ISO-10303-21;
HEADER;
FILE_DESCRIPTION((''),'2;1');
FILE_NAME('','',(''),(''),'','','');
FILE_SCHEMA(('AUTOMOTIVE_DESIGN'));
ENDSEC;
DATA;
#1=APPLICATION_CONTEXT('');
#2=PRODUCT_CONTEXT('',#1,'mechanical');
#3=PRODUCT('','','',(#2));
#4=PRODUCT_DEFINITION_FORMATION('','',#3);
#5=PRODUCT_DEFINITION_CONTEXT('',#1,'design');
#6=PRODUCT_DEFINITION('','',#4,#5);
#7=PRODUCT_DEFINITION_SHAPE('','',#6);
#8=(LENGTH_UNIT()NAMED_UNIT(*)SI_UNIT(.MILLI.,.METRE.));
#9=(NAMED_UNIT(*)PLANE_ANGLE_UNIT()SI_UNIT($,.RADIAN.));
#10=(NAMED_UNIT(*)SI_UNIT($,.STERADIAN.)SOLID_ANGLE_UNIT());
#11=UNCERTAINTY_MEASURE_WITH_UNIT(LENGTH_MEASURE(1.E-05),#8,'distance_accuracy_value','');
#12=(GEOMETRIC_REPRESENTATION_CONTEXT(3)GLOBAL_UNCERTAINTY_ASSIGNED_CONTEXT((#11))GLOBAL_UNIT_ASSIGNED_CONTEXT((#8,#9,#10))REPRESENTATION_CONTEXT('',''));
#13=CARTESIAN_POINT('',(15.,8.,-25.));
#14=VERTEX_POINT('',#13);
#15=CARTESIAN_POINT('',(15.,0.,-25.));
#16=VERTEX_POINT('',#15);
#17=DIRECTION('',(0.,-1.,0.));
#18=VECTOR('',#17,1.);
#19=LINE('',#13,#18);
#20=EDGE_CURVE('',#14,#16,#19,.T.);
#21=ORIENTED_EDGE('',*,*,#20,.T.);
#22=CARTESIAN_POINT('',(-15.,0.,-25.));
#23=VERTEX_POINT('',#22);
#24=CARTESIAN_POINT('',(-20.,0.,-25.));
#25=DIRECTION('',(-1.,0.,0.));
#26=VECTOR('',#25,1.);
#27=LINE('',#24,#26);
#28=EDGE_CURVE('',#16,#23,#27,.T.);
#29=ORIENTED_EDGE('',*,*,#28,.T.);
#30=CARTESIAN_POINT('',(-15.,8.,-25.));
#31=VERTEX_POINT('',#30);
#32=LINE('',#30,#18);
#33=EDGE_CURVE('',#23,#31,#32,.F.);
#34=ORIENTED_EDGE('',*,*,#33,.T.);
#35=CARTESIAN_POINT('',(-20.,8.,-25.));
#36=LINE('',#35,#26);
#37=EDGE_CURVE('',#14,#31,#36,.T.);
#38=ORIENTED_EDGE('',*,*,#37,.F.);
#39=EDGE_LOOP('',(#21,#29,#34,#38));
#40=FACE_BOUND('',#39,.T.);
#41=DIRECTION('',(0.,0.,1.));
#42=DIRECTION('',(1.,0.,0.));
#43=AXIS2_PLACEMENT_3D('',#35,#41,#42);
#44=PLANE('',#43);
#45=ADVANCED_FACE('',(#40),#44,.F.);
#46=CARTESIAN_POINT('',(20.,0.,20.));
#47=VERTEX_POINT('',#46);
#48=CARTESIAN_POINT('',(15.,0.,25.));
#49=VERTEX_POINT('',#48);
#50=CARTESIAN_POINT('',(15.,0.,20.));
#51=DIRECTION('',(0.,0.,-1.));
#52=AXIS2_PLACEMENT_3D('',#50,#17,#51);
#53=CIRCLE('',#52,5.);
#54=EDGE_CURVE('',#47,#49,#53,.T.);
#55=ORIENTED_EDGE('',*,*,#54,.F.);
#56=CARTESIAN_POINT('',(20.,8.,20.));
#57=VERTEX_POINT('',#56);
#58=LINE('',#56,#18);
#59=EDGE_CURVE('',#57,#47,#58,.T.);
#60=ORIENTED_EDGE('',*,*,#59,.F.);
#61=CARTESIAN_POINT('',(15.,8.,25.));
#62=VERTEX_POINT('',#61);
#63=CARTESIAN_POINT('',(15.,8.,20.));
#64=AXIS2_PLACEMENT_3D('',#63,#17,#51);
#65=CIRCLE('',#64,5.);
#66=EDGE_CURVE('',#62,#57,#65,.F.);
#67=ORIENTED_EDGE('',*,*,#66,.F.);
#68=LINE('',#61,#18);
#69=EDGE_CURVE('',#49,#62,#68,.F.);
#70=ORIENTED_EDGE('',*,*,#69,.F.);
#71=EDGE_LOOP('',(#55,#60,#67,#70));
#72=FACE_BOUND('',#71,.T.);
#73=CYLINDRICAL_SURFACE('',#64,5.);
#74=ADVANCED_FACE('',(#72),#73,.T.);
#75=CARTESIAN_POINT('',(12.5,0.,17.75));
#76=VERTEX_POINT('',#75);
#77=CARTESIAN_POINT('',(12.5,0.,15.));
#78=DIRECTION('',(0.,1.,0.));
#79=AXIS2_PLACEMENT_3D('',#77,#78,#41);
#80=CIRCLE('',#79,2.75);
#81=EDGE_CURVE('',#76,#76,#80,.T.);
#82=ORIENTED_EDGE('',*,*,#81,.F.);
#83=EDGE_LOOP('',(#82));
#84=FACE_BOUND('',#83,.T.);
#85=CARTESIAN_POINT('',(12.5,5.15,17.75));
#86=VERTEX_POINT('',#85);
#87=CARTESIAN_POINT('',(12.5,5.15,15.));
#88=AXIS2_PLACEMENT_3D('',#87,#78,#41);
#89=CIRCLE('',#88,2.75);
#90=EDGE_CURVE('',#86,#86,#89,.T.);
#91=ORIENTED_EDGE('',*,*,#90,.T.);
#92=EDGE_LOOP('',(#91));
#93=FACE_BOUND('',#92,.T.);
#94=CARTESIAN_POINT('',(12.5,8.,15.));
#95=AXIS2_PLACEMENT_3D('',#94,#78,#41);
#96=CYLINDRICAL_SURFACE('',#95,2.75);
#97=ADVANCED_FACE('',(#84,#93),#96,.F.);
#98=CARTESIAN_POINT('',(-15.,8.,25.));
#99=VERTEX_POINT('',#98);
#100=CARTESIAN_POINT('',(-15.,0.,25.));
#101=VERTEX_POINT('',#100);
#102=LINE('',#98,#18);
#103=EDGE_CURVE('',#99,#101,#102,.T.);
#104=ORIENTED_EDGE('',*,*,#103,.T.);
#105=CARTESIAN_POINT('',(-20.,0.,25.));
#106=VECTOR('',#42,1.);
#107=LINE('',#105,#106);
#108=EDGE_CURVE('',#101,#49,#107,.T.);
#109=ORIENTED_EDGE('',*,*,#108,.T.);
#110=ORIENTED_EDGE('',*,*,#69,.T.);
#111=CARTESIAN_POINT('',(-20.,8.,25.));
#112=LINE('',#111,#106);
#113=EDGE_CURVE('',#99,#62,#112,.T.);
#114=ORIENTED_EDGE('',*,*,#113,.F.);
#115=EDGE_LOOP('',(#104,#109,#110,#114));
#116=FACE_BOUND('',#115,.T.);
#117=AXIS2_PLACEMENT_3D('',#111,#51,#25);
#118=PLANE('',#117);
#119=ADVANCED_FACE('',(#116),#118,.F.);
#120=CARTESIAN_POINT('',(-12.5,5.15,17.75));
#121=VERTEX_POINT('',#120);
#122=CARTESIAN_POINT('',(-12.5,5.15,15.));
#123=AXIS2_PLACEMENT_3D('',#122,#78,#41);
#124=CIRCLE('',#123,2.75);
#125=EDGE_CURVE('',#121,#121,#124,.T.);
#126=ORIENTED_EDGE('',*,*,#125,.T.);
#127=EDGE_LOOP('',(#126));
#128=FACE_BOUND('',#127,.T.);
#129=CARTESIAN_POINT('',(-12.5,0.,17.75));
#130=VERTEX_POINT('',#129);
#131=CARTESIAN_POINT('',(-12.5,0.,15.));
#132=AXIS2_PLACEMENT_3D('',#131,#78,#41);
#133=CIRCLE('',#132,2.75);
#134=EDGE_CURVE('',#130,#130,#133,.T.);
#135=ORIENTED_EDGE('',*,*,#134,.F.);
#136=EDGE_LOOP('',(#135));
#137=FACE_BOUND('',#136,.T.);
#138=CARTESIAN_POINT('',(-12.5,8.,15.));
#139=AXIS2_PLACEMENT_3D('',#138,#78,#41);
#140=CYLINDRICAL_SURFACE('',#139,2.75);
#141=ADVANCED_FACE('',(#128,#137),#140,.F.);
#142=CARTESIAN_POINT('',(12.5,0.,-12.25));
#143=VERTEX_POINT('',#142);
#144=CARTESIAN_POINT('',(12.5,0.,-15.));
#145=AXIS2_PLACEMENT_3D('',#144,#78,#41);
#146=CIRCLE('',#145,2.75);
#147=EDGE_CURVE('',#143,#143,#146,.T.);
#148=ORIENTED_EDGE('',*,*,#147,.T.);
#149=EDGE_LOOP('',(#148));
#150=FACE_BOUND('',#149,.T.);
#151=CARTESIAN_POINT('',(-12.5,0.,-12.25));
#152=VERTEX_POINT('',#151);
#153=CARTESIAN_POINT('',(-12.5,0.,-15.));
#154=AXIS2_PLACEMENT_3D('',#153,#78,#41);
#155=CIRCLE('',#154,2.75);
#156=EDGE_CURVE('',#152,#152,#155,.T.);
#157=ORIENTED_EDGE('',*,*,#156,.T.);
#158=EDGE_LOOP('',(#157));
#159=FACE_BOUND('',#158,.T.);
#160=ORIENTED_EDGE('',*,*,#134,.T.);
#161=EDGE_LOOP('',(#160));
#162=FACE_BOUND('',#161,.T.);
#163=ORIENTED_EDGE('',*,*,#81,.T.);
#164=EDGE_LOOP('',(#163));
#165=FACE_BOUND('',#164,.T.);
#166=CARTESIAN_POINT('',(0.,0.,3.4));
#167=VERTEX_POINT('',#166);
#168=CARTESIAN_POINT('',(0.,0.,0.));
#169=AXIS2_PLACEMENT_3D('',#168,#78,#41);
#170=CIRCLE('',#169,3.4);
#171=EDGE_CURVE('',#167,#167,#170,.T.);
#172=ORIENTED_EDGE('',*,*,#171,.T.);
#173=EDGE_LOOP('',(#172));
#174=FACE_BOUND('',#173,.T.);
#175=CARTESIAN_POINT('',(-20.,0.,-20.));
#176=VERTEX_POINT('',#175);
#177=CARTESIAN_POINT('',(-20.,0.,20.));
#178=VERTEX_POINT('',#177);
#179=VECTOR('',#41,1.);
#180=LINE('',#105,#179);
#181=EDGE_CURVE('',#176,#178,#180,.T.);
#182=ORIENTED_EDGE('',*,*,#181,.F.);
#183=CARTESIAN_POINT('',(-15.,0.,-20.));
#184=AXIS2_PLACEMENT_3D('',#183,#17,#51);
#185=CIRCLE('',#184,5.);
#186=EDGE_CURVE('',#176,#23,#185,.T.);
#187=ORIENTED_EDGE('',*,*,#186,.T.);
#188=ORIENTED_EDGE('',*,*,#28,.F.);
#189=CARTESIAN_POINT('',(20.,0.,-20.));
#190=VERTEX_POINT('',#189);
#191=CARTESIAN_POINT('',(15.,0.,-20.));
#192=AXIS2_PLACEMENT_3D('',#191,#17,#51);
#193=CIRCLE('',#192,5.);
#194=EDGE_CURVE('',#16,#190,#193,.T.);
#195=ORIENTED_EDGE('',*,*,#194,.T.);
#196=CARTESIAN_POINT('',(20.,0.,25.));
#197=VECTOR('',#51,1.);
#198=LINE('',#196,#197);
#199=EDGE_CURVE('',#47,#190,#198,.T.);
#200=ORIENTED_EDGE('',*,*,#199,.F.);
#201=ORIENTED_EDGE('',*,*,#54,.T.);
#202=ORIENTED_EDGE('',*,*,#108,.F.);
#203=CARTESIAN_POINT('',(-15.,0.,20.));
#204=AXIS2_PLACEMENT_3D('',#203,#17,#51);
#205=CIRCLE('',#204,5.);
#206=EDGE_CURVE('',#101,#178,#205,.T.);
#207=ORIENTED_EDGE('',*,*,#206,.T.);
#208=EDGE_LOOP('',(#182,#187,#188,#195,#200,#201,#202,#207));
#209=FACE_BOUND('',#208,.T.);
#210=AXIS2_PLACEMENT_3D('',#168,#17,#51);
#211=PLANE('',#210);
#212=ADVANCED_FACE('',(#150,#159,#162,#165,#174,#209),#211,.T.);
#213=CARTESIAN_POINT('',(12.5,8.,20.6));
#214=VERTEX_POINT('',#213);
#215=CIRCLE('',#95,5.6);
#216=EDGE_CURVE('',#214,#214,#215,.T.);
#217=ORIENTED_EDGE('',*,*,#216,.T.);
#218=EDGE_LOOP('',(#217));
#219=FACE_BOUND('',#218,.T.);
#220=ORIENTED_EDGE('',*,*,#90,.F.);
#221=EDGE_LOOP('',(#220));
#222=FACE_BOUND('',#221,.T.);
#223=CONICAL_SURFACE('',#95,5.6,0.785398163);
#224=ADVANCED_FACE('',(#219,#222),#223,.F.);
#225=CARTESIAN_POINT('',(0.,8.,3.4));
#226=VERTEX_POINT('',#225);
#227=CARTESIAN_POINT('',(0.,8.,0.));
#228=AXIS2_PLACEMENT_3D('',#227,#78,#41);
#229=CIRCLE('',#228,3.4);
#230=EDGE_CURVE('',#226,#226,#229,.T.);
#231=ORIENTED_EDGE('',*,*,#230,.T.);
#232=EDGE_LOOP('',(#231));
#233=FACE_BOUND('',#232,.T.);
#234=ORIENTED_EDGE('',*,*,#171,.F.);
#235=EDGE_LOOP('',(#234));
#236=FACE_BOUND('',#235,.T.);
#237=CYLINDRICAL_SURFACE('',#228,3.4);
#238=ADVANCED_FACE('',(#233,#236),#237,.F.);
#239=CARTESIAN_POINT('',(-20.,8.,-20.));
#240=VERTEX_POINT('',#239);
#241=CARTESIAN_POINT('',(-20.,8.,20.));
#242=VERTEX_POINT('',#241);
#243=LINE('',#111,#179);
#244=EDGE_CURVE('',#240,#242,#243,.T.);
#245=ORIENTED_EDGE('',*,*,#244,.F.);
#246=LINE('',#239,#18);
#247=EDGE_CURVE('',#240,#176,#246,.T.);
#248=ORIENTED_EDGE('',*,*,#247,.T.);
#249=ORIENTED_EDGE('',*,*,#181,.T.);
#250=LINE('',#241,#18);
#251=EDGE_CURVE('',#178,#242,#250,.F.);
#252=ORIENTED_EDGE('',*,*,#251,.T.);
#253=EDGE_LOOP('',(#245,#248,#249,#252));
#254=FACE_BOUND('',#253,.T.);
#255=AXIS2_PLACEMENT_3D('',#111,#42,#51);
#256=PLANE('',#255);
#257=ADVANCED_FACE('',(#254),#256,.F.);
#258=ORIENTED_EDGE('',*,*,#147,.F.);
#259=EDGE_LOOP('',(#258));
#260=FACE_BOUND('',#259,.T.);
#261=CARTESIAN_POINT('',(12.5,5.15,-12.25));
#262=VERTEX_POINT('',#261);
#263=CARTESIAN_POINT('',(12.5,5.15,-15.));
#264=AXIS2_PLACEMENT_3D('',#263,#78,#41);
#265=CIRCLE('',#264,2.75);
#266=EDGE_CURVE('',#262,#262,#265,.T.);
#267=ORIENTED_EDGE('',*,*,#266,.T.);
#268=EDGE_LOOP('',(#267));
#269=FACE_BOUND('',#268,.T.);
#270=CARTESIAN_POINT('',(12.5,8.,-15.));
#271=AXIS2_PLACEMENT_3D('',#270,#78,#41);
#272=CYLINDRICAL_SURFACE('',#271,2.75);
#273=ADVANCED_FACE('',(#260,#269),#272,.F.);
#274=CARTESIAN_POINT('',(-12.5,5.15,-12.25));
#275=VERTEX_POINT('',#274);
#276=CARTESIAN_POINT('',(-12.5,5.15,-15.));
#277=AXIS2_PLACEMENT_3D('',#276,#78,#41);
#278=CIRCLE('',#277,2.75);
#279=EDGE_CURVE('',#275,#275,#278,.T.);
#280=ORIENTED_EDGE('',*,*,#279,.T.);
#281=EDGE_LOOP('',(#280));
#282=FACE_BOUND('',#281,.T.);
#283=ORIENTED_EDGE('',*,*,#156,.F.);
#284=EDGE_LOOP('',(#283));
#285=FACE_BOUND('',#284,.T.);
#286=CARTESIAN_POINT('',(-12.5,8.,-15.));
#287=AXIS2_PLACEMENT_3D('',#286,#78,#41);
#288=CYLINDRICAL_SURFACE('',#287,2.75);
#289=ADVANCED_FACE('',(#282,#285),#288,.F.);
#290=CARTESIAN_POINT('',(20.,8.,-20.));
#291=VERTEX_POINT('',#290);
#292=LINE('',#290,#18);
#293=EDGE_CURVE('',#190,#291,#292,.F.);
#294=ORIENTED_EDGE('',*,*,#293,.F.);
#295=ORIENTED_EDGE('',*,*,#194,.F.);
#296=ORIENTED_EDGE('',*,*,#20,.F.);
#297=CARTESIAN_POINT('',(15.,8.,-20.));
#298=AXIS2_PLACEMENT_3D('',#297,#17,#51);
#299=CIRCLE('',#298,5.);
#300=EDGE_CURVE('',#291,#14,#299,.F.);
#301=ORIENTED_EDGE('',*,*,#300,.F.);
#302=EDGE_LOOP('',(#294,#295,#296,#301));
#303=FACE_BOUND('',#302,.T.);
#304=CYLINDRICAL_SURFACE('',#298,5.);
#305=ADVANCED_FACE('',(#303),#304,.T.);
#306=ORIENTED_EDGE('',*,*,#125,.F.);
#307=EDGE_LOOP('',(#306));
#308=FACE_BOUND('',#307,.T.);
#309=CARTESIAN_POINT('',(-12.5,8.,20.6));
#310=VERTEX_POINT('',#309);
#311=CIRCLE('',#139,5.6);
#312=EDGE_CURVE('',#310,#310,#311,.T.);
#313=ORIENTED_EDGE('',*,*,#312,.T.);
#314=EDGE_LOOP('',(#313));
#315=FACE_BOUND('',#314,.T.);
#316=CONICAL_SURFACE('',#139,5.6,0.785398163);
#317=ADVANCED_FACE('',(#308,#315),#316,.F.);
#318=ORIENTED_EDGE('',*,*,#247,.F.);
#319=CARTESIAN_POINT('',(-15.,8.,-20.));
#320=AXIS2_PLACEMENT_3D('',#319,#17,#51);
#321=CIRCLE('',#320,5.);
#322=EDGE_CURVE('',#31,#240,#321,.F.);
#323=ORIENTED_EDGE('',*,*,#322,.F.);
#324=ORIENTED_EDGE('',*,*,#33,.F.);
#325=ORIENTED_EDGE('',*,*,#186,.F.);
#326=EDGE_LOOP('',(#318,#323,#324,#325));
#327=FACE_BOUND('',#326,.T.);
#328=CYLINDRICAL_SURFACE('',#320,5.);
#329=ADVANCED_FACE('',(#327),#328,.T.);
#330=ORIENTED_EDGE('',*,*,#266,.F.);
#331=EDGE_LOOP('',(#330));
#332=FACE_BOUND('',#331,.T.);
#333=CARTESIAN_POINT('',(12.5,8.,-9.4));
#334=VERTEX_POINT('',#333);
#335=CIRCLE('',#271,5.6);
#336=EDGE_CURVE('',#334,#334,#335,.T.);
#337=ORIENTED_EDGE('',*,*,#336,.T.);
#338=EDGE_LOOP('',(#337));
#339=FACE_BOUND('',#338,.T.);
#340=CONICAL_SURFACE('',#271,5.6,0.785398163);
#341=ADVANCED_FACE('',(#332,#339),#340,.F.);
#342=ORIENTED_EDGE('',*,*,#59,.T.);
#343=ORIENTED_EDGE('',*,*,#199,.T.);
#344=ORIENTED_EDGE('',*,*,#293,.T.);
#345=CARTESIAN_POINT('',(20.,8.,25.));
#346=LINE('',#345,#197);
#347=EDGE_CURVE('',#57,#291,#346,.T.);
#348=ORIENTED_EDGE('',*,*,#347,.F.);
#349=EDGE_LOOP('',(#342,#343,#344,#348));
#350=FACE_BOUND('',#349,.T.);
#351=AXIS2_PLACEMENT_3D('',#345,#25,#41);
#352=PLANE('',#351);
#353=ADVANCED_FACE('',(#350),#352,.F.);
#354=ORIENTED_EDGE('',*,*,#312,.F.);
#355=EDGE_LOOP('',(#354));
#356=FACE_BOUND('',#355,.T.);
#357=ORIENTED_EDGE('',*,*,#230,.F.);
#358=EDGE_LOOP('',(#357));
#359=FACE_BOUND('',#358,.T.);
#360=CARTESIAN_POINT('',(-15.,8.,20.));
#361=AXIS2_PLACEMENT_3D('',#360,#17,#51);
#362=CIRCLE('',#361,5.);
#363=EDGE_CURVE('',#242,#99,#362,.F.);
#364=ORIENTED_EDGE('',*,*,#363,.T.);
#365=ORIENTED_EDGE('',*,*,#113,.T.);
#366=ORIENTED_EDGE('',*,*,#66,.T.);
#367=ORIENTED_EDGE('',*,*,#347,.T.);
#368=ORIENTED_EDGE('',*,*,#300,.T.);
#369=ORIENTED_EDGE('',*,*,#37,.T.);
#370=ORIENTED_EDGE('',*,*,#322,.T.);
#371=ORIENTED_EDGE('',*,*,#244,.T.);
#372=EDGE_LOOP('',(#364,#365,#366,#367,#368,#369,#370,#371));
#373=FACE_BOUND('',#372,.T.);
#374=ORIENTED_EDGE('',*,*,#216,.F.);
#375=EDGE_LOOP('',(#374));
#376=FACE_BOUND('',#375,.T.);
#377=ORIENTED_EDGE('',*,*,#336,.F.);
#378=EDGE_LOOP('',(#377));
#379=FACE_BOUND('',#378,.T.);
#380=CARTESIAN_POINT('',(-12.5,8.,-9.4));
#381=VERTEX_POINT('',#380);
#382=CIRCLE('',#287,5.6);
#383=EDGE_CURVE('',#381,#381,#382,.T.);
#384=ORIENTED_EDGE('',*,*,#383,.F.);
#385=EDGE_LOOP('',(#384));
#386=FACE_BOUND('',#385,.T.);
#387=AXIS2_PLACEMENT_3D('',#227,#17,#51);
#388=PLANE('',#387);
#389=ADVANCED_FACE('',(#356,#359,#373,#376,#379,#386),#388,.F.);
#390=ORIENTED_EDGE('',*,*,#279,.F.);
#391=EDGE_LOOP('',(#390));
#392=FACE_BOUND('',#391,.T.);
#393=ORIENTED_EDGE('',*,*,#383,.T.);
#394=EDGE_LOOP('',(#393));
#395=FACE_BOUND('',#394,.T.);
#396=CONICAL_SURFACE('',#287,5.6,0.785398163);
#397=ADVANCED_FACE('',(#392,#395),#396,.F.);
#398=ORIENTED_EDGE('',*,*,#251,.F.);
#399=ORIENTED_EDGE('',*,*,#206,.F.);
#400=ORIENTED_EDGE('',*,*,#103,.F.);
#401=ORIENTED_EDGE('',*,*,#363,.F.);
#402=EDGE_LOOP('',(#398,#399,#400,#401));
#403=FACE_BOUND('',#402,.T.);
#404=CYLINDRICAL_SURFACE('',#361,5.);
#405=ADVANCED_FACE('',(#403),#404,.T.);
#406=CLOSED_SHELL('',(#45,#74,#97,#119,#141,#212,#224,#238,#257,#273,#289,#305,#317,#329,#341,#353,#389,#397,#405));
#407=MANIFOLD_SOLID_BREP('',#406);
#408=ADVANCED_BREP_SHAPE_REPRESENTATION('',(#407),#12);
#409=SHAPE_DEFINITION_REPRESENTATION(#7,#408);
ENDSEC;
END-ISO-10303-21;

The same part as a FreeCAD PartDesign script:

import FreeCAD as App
import Part
import Sketcher
from FreeCAD import Vector
Q = App.Units.Quantity


def edges_at(feature, points):
    """Names of the edges that pass closest to the given points."""
    edges = feature.Shape.Edges
    near = lambda p: min(range(len(edges)), key=lambda i: edges[i].distToShape(Part.Vertex(*p))[0])
    return sorted({f"Edge{near(p) + 1}" for p in points})


def add_polygon(sketch, points):
    """Adds a closed chain of lines whose ends are joined by coincident constraints."""
    first, n = sketch.GeometryCount, len(points)
    for a, b in zip(points, points[1:] + points[:1]):
        sketch.addGeometry(Part.LineSegment(App.Vector(*a, 0), App.Vector(*b, 0)), False)
    for i in range(n):
        sketch.addConstraint(Sketcher.Constraint("Coincident", first + i, 2, first + (i + 1) % n, 1))

doc = App.newDocument("Part")
params = doc.addObject("Spreadsheet::Sheet", "Params")
for row, (alias, value) in enumerate([
    ("sketch1_width", "40 mm"),
    ("sketch1_height", "50 mm"),
    ("pad1_length", "8 mm"),
    ("sketch2_diameter", "5.5 mm"),
    ("hole_diameter", "5.5 mm"),
    ("hole_csink_diameter", "11.2 mm"),
    ("sketch3_diameter", "6.8 mm"),
    ("hole2_diameter", "6.8 mm"),
    ("fillet_radius", "5 mm"),
], start=1):
    params.set(f"A{row}", alias)
    params.set(f"B{row}", "=" + value)
    params.setAlias(f"B{row}", alias)

body = doc.addObject("PartDesign::Body", "Body")

# Sketch on XZ plane
sketch1 = doc.addObject("Sketcher::SketchObject", "Sketch")
body.addObject(sketch1)
sketch1.AttachmentSupport = (doc.XZ_Plane, [""])
sketch1.MapMode = "FlatFace"
add_polygon(sketch1, [(-20, -25), (-20, 25), (20, 25), (20, -25)])  # lines 0-3
sketch1.addConstraint(Sketcher.Constraint("Vertical", 0))
sketch1.addConstraint(Sketcher.Constraint("Horizontal", 1))
sketch1.addConstraint(Sketcher.Constraint("Vertical", 2))
sketch1.addConstraint(Sketcher.Constraint("Horizontal", 3))
sketch1.addConstraint(Sketcher.Constraint("Symmetric", 0, 2, 2, 2, -1, 1))
sketch1.addConstraint(Sketcher.Constraint("DistanceX", 1, 1, 1, 2, Q("40 mm")))
sketch1.addConstraint(Sketcher.Constraint("DistanceY", 0, 1, 0, 2, Q("50 mm")))
sketch1.setExpression("Constraints[9]", "Params.sketch1_width")
sketch1.setExpression("Constraints[10]", "Params.sketch1_height")
pad1 = doc.addObject("PartDesign::Pad", "Pad")
body.addObject(pad1)
pad1.Profile = sketch1
pad1.setExpression("Length", "Params.pad1_length")
pad1.Reversed = True

# Sketch on XZ plane
sketch2 = doc.addObject("Sketcher::SketchObject", "Sketch001")
body.addObject(sketch2)
sketch2.AttachmentSupport = (doc.XZ_Plane, [""])
sketch2.MapMode = "FlatFace"
sketch2.AttachmentOffset = App.Placement(Vector(0, 0, -8), App.Rotation())
sketch2.addGeometry(Part.Circle(Vector(-12.5, -15, 0), Vector(0, 0, 1), 2.8), False)
sketch2.addGeometry(Part.Circle(Vector(-12.5, 15, 0), Vector(0, 0, 1), 2.8), False)
sketch2.addGeometry(Part.Circle(Vector(12.5, 15, 0), Vector(0, 0, 1), 2.8), False)
sketch2.addGeometry(Part.Circle(Vector(12.5, -15, 0), Vector(0, 0, 1), 2.8), False)
sketch2.addConstraint(Sketcher.Constraint("Equal", 0, 1))
sketch2.addConstraint(Sketcher.Constraint("Equal", 1, 2))
sketch2.addConstraint(Sketcher.Constraint("Equal", 2, 3))
sketch2.addConstraint(Sketcher.Constraint("Symmetric", 0, 3, 2, 3, -1, 1))
sketch2.addConstraint(Sketcher.Constraint("Symmetric", 1, 3, 3, 3, -1, 1))
sketch2.addConstraint(Sketcher.Constraint("Symmetric", 1, 3, 2, 3, -2))
sketch2.addConstraint(Sketcher.Constraint("Diameter", 0, Q("5.5 mm")))
sketch2.addConstraint(Sketcher.Constraint("DistanceY", 0, 3, -1, 1, Q("15 mm")))
sketch2.addConstraint(Sketcher.Constraint("DistanceX", 1, 3, 2, 3, Q("25 mm")))
sketch2.setExpression("Constraints[6]", "Params.sketch2_diameter")
doc.recompute()
hole = doc.addObject("PartDesign::Hole", "Hole")
body.addObject(hole)
hole.Profile = sketch2
hole.ThreadType = "None"
hole.setExpression("Diameter", "Params.hole_diameter")
hole.DepthType = "ThroughAll"
hole.HoleCutType = "Countersink"
hole.setExpression("HoleCutDiameter", "Params.hole_csink_diameter")
hole.HoleCutCountersinkAngle = 90
hole.Reversed = True

# Sketch on XZ plane
sketch3 = doc.addObject("Sketcher::SketchObject", "Sketch002")
body.addObject(sketch3)
sketch3.AttachmentSupport = (doc.XZ_Plane, [""])
sketch3.MapMode = "FlatFace"
sketch3.AttachmentOffset = App.Placement(Vector(0, 0, -8), App.Rotation())
sketch3.addGeometry(Part.Circle(Vector(0, 0, 0), Vector(0, 0, 1), 3.4), False)
sketch3.addConstraint(Sketcher.Constraint("Coincident", 0, 3, -1, 1))
sketch3.addConstraint(Sketcher.Constraint("Diameter", 0, Q("6.8 mm")))
sketch3.setExpression("Constraints[1]", "Params.sketch3_diameter")
doc.recompute()
hole2 = doc.addObject("PartDesign::Hole", "Hole001")
body.addObject(hole2)
hole2.Profile = sketch3
hole2.ThreadType = "None"
hole2.setExpression("Diameter", "Params.hole2_diameter")
hole2.DepthType = "ThroughAll"
hole2.Reversed = True
doc.recompute()

fillet = doc.addObject("PartDesign::Fillet", "Fillet")
body.addObject(fillet)
fillet.Base = (hole2, edges_at(hole2, [
    (20, 4, 25),
    (-20, 4, 25),
    (-20, 4, -25),
    (20, 4, -25),
]))
fillet.setExpression("Radius", "Params.fillet_radius")

doc.recompute()
